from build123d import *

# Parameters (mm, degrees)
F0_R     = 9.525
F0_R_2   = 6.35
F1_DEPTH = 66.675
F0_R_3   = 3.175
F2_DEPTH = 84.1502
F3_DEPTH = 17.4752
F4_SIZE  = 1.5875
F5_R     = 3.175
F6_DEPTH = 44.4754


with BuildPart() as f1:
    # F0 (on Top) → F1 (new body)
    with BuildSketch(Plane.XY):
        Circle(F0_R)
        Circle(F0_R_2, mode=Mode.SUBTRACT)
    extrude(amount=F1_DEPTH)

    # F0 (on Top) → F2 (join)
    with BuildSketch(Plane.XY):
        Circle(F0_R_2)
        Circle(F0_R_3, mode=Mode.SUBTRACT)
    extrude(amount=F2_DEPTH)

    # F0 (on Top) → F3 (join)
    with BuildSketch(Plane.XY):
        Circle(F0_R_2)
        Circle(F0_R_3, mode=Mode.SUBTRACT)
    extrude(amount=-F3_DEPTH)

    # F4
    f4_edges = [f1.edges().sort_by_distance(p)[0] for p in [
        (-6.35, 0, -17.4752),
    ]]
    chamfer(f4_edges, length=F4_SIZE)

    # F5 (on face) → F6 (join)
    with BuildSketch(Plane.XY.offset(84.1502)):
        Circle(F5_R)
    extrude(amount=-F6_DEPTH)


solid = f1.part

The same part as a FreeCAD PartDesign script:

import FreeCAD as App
import Part
import Sketcher
Q = App.Units.Quantity


def edges_at(feature, points):
    """Names of the edges that pass closest to the given points."""
    edges = feature.Shape.Edges
    near = lambda p: min(range(len(edges)), key=lambda i: edges[i].distToShape(Part.Vertex(*p))[0])
    return sorted({f"Edge{near(p) + 1}" for p in points})

doc = App.newDocument("Part")
body = doc.addObject("PartDesign::Body", "Body")

# Sketch on XY plane
sketch1 = body.newObject("Sketcher::SketchObject", "Sketch")
sketch1.AttachmentSupport = (doc.getObject("XY_Plane"), [""])
sketch1.MapMode = "FlatFace"
sketch1.addGeometry(Part.Circle(App.Vector(0, 0, 0), App.Vector(0, 0, 1), 9.525), False)
sketch1.addGeometry(Part.Circle(App.Vector(0, 0, 0), App.Vector(0, 0, 1), 6.35), False)
sketch1.addConstraint(Sketcher.Constraint("Coincident", 0, 3, -1, 1))
sketch1.addConstraint(Sketcher.Constraint("Coincident", 1, 3, -1, 1))
sketch1.addConstraint(Sketcher.Constraint("Diameter", 1, Q("0.5 in")))
sketch1.addConstraint(Sketcher.Constraint("Diameter", 0, Q("0.75 in")))
pad1 = body.newObject("PartDesign::Pad", "Pad")
pad1.Profile = sketch1
pad1.Length = Q("2.625 in")

# Sketch on XY plane
sketch2 = body.newObject("Sketcher::SketchObject", "Sketch001")
sketch2.AttachmentSupport = (doc.getObject("XY_Plane"), [""])
sketch2.MapMode = "FlatFace"
sketch2.addGeometry(Part.Circle(App.Vector(0, 0, 0), App.Vector(0, 0, 1), 6.35), False)
sketch2.addGeometry(Part.Circle(App.Vector(0, 0, 0), App.Vector(0, 0, 1), 3.175), False)
sketch2.addConstraint(Sketcher.Constraint("Coincident", 0, 3, -1, 1))
sketch2.addConstraint(Sketcher.Constraint("Coincident", 1, 3, -1, 1))
sketch2.addConstraint(Sketcher.Constraint("Diameter", 0, Q("0.5 in")))
sketch2.addConstraint(Sketcher.Constraint("Diameter", 1, Q("0.25 in")))
pad2 = body.newObject("PartDesign::Pad", "Pad001")
pad2.Profile = sketch2
pad2.Length = Q("3.313 in")

# Sketch on XY plane
sketch3 = body.newObject("Sketcher::SketchObject", "Sketch002")
sketch3.AttachmentSupport = (doc.getObject("XY_Plane"), [""])
sketch3.MapMode = "FlatFace"
sketch3.addGeometry(Part.Circle(App.Vector(0, 0, 0), App.Vector(0, 0, 1), 6.35), False)
sketch3.addGeometry(Part.Circle(App.Vector(0, 0, 0), App.Vector(0, 0, 1), 3.175), False)
sketch3.addConstraint(Sketcher.Constraint("Coincident", 0, 3, -1, 1))
sketch3.addConstraint(Sketcher.Constraint("Coincident", 1, 3, -1, 1))
sketch3.addConstraint(Sketcher.Constraint("Diameter", 0, Q("0.5 in")))
sketch3.addConstraint(Sketcher.Constraint("Diameter", 1, Q("0.25 in")))
pad3 = body.newObject("PartDesign::Pad", "Pad002")
pad3.Profile = sketch3
pad3.Length = Q("0.688 in")
pad3.Reversed = True
doc.recompute()

chamfer = body.newObject("PartDesign::Chamfer", "Chamfer")
chamfer.Base = (pad3, edges_at(pad3, [(-6.35, 0, -17.475)]))
chamfer.Size = Q("0.0625 in")

# Sketch on XY plane
sketch4 = body.newObject("Sketcher::SketchObject", "Sketch003")
sketch4.AttachmentSupport = (doc.getObject("XY_Plane"), [""])
sketch4.MapMode = "FlatFace"
sketch4.AttachmentOffset = App.Placement(App.Vector(0, 0, 3.313 * 25.4), App.Rotation())
sketch4.addGeometry(Part.Circle(App.Vector(0, 0, 0), App.Vector(0, 0, 1), 3.175), False)
sketch4.addConstraint(Sketcher.Constraint("Coincident", 0, 3, -1, 1))
sketch4.addConstraint(Sketcher.Constraint("Diameter", 0, Q("0.25 in")))
pad4 = body.newObject("PartDesign::Pad", "Pad003")
pad4.Profile = sketch4
pad4.Length = Q("1.751 in")
pad4.Reversed = True

doc.recompute()
